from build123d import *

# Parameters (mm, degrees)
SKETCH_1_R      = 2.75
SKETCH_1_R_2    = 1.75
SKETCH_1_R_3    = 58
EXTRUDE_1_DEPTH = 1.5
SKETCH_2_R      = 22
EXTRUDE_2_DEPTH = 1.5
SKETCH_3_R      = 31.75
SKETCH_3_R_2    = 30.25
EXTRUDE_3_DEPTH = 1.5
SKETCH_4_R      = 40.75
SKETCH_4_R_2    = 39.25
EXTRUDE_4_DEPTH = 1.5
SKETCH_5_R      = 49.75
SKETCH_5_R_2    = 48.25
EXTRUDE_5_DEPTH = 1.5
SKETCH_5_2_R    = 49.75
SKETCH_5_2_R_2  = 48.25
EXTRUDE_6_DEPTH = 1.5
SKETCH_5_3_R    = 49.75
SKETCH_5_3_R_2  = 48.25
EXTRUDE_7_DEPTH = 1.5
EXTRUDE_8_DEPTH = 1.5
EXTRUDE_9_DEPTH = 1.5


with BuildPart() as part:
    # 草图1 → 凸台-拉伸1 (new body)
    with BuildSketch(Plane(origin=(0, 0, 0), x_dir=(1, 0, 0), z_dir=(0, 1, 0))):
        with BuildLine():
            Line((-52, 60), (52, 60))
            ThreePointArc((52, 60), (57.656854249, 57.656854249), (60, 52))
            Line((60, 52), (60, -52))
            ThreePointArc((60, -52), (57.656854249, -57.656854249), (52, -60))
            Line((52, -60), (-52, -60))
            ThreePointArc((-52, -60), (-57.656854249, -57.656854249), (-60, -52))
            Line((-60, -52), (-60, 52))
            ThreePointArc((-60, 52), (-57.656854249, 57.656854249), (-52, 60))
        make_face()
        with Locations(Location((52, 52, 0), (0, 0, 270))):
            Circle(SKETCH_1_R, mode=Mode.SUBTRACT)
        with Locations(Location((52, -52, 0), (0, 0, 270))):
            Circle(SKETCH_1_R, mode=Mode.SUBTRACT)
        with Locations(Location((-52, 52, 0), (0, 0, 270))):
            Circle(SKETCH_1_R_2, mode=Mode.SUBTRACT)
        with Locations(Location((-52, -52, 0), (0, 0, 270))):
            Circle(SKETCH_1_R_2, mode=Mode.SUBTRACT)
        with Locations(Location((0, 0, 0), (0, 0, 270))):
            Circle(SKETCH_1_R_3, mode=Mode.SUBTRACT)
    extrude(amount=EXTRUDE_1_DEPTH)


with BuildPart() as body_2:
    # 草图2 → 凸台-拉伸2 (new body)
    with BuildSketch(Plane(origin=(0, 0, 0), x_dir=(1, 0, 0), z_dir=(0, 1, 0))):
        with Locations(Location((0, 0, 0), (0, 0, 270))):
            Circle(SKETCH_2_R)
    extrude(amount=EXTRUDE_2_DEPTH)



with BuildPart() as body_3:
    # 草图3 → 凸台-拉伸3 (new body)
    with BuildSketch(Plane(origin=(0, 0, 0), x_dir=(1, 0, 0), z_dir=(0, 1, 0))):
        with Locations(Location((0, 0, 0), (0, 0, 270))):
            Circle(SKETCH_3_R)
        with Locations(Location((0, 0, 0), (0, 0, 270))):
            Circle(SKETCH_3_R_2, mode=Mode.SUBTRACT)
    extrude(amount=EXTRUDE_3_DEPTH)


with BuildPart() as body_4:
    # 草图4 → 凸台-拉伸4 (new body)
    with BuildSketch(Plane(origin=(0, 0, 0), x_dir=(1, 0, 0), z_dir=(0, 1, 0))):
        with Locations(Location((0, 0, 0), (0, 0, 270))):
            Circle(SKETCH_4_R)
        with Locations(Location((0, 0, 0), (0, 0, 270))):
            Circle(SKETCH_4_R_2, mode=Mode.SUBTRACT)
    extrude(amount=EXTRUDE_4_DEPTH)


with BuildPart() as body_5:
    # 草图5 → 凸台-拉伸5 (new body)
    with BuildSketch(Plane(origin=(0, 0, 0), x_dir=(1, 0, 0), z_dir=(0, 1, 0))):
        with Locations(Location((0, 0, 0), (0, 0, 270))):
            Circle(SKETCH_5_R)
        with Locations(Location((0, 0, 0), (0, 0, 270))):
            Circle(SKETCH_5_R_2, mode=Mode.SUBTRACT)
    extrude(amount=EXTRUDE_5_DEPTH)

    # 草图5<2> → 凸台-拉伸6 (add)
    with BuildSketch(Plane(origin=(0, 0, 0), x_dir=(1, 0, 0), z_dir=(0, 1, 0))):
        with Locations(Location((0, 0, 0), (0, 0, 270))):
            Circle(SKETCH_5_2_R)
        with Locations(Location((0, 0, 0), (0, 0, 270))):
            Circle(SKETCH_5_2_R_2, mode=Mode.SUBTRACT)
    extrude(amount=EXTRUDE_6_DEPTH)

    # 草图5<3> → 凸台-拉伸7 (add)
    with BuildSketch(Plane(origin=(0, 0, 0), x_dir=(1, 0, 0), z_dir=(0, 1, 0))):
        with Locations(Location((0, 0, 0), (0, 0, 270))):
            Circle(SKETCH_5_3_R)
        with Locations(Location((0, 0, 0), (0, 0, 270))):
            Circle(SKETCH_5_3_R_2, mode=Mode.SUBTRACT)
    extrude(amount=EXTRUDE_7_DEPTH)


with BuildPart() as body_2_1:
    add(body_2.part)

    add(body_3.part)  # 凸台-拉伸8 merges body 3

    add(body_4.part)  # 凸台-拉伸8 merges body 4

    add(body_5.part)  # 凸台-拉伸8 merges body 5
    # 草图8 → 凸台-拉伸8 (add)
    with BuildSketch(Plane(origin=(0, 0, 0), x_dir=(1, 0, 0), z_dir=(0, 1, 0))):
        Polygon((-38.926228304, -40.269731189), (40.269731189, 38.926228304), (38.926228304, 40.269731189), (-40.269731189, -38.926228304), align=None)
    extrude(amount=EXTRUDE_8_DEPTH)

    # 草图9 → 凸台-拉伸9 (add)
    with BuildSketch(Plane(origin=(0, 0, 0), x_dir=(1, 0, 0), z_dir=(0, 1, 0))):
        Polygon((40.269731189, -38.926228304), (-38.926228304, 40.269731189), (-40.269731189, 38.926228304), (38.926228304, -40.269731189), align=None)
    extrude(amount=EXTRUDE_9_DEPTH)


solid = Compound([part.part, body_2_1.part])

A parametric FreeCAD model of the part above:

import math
import FreeCAD as App
import Part
import Sketcher
Q = App.Units.Quantity


def add_polygon(sketch, points):
    """Adds a closed chain of lines whose ends are joined by coincident constraints."""
    first, n = sketch.GeometryCount, len(points)
    for a, b in zip(points, points[1:] + points[:1]):
        sketch.addGeometry(Part.LineSegment(App.Vector(*a, 0), App.Vector(*b, 0)), False)
    for i in range(n):
        sketch.addConstraint(Sketcher.Constraint("Coincident", first + i, 2, first + (i + 1) % n, 1))

doc = App.newDocument("Part")
params = doc.addObject("Spreadsheet::Sheet", "Params")
for row, (alias, value) in enumerate([
    ("sketch1_diameter", "116 mm"),
    ("sketch1_radius", "8 mm"),
    ("sketch1_diameter2", "5.5 mm"),
    ("sketch1_diameter3", "3.5 mm"),
    ("sketch1_width", "104 mm"),
    ("pad1_length", "1.5 mm"),
    ("sketch2_diameter", "44 mm"),
    ("pad2_length", "1.5 mm"),
    ("sketch3_diameter", "63.5 mm"),
    ("sketch3_diameter2", "60.5 mm"),
    ("pad3_length", "1.5 mm"),
    ("sketch4_diameter", "81.5 mm"),
    ("sketch4_diameter2", "78.5 mm"),
    ("pad4_length", "1.5 mm"),
    ("sketch5_diameter", "99.5 mm"),
    ("sketch5_diameter2", "96.5 mm"),
    ("pad5_length", "1.5 mm"),
    ("sketch6_diameter", "99.5 mm"),
    ("sketch6_diameter2", "96.5 mm"),
    ("pad6_length", "1.5 mm"),
    ("sketch7_diameter", "99.5 mm"),
    ("sketch7_diameter2", "96.5 mm"),
    ("pad7_length", "1.5 mm"),
    ("sketch8_length", "112 mm"),
    ("sketch8_length2", "1.9 mm"),
    ("pad8_length", "1.5 mm"),
    ("sketch9_length", "112 mm"),
    ("sketch9_length2", "1.9 mm"),
    ("pad9_length", "1.5 mm"),
], start=1):
    params.set(f"A{row}", alias)
    params.set(f"B{row}", "=" + value)
    params.setAlias(f"B{row}", alias)

body = doc.addObject("PartDesign::Body", "Body")

# Sketch on XZ plane
sketch1 = body.newObject("Sketcher::SketchObject", "Sketch")
sketch1.AttachmentSupport = (doc.getObject("XZ_Plane"), [""])
sketch1.MapMode = "FlatFace"
sketch1.addGeometry(Part.LineSegment(App.Vector(52, -60, 0), App.Vector(-52, -60, 0)), False)
sketch1.addGeometry(Part.ArcOfCircle(Part.Circle(App.Vector(-52, -52, 0), App.Vector(0, 0, 1), 8), math.radians(-180), math.radians(-90)), False)
sketch1.addGeometry(Part.LineSegment(App.Vector(-60, -52, 0), App.Vector(-60, 52, 0)), False)
sketch1.addGeometry(Part.ArcOfCircle(Part.Circle(App.Vector(-52, 52, 0), App.Vector(0, 0, 1), 8), math.radians(90), math.radians(180)), False)
sketch1.addGeometry(Part.LineSegment(App.Vector(-52, 60, 0), App.Vector(52, 60, 0)), False)
sketch1.addGeometry(Part.ArcOfCircle(Part.Circle(App.Vector(52, 52, 0), App.Vector(0, 0, 1), 8), math.radians(0), math.radians(90)), False)
sketch1.addGeometry(Part.LineSegment(App.Vector(60, 52, 0), App.Vector(60, -52, 0)), False)
sketch1.addGeometry(Part.ArcOfCircle(Part.Circle(App.Vector(52, -52, 0), App.Vector(0, 0, 1), 8), math.radians(-90), math.radians(0)), False)
sketch1.addGeometry(Part.Circle(App.Vector(52, 52, 0), App.Vector(0, 0, 1), 2.8), False)
sketch1.addGeometry(Part.Circle(App.Vector(-52, 52, 0), App.Vector(0, 0, 1), 1.8), False)
sketch1.addGeometry(Part.Circle(App.Vector(52, -52, 0), App.Vector(0, 0, 1), 2.8), False)
sketch1.addGeometry(Part.Circle(App.Vector(0, 0, 0), App.Vector(0, 0, 1), 58), False)
sketch1.addGeometry(Part.Circle(App.Vector(-52, -52, 0), App.Vector(0, 0, 1), 1.8), False)
sketch1.addConstraint(Sketcher.Constraint("Tangent", 0, 2, 1, 2))
sketch1.addConstraint(Sketcher.Constraint("Tangent", 1, 1, 2, 1))
sketch1.addConstraint(Sketcher.Constraint("Tangent", 2, 2, 3, 2))
sketch1.addConstraint(Sketcher.Constraint("Tangent", 3, 1, 4, 1))
sketch1.addConstraint(Sketcher.Constraint("Tangent", 4, 2, 5, 2))
sketch1.addConstraint(Sketcher.Constraint("Tangent", 5, 1, 6, 1))
sketch1.addConstraint(Sketcher.Constraint("Tangent", 6, 2, 7, 2))
sketch1.addConstraint(Sketcher.Constraint("Tangent", 7, 1, 0, 1))
sketch1.addConstraint(Sketcher.Constraint("Horizontal", 0))
sketch1.addConstraint(Sketcher.Constraint("Vertical", 2))
sketch1.addConstraint(Sketcher.Constraint("Horizontal", 4))
sketch1.addConstraint(Sketcher.Constraint("Vertical", 6))
sketch1.addConstraint(Sketcher.Constraint("Coincident", 11, 3, -1, 1))
sketch1.addConstraint(Sketcher.Constraint("Coincident", 8, 3, 5, 3))
sketch1.addConstraint(Sketcher.Constraint("Coincident", 9, 3, 3, 3))
sketch1.addConstraint(Sketcher.Constraint("Coincident", 10, 3, 7, 3))
sketch1.addConstraint(Sketcher.Constraint("Coincident", 12, 3, 1, 3))
sketch1.addConstraint(Sketcher.Constraint("Equal", 1, 3))
sketch1.addConstraint(Sketcher.Constraint("Equal", 3, 5))
sketch1.addConstraint(Sketcher.Constraint("Equal", 5, 7))
sketch1.addConstraint(Sketcher.Constraint("Equal", 8, 10))
sketch1.addConstraint(Sketcher.Constraint("Equal", 9, 12))
sketch1.addConstraint(Sketcher.Constraint("Symmetric", 1, 3, 5, 3, -1, 1))
sketch1.addConstraint(Sketcher.Constraint("Equal", 4, 2))
sketch1.addConstraint(Sketcher.Constraint("Diameter", 11, 116.0))
sketch1.addConstraint(Sketcher.Constraint("Radius", 1, 8.0))
sketch1.addConstraint(Sketcher.Constraint("Diameter", 8, 5.5))
sketch1.addConstraint(Sketcher.Constraint("Diameter", 9, 3.5))
sketch1.addConstraint(Sketcher.Constraint("DistanceX", 0, 2, 0, 1, 104.0))
sketch1.setExpression("Constraints[24]", "Params.sketch1_diameter")
sketch1.setExpression("Constraints[25]", "Params.sketch1_radius")
sketch1.setExpression("Constraints[26]", "Params.sketch1_diameter2")
sketch1.setExpression("Constraints[27]", "Params.sketch1_diameter3")
sketch1.setExpression("Constraints[28]", "Params.sketch1_width")
pad1 = body.newObject("PartDesign::Pad", "Pad")
pad1.Profile = sketch1
pad1.setExpression("Length", "Params.pad1_length")
pad1.Reversed = True
body2 = doc.addObject("PartDesign::Body", "Body001")

# Sketch on XZ plane
sketch2 = body2.newObject("Sketcher::SketchObject", "Sketch001")
sketch2.AttachmentSupport = (doc.getObject("XZ_Plane001"), [""])
sketch2.MapMode = "FlatFace"
sketch2.addGeometry(Part.Circle(App.Vector(0, 0, 0), App.Vector(0, 0, 1), 22), False)
sketch2.addConstraint(Sketcher.Constraint("Coincident", 0, 3, -1, 1))
sketch2.addConstraint(Sketcher.Constraint("Diameter", 0, 44.0))
sketch2.setExpression("Constraints[1]", "Params.sketch2_diameter")
pad2 = body2.newObject("PartDesign::Pad", "Pad001")
pad2.Profile = sketch2
pad2.setExpression("Length", "Params.pad2_length")
pad2.Reversed = True
body3 = doc.addObject("PartDesign::Body", "Body002")

# Sketch on XZ plane
sketch3 = body3.newObject("Sketcher::SketchObject", "Sketch002")
sketch3.AttachmentSupport = (doc.getObject("XZ_Plane002"), [""])
sketch3.MapMode = "FlatFace"
sketch3.addGeometry(Part.Circle(App.Vector(0, 0, 0), App.Vector(0, 0, 1), 32), False)
sketch3.addGeometry(Part.Circle(App.Vector(0, 0, 0), App.Vector(0, 0, 1), 30), False)
sketch3.addConstraint(Sketcher.Constraint("Coincident", 0, 3, -1, 1))
sketch3.addConstraint(Sketcher.Constraint("Coincident", 1, 3, -1, 1))
sketch3.addConstraint(Sketcher.Constraint("Diameter", 0, 63.5))
sketch3.addConstraint(Sketcher.Constraint("Diameter", 1, 60.5))
sketch3.setExpression("Constraints[2]", "Params.sketch3_diameter")
sketch3.setExpression("Constraints[3]", "Params.sketch3_diameter2")
pad3 = body3.newObject("PartDesign::Pad", "Pad002")
pad3.Profile = sketch3
pad3.setExpression("Length", "Params.pad3_length")
pad3.Reversed = True
body4 = doc.addObject("PartDesign::Body", "Body003")

# Sketch on XZ plane
sketch4 = body4.newObject("Sketcher::SketchObject", "Sketch003")
sketch4.AttachmentSupport = (doc.getObject("XZ_Plane003"), [""])
sketch4.MapMode = "FlatFace"
sketch4.addGeometry(Part.Circle(App.Vector(0, 0, 0), App.Vector(0, 0, 1), 41), False)
sketch4.addGeometry(Part.Circle(App.Vector(0, 0, 0), App.Vector(0, 0, 1), 39), False)
sketch4.addConstraint(Sketcher.Constraint("Coincident", 0, 3, -1, 1))
sketch4.addConstraint(Sketcher.Constraint("Coincident", 1, 3, -1, 1))
sketch4.addConstraint(Sketcher.Constraint("Diameter", 0, 81.5))
sketch4.addConstraint(Sketcher.Constraint("Diameter", 1, 78.5))
sketch4.setExpression("Constraints[2]", "Params.sketch4_diameter")
sketch4.setExpression("Constraints[3]", "Params.sketch4_diameter2")
pad4 = body4.newObject("PartDesign::Pad", "Pad003")
pad4.Profile = sketch4
pad4.setExpression("Length", "Params.pad4_length")
pad4.Reversed = True
body5 = doc.addObject("PartDesign::Body", "Body004")

# Sketch on XZ plane
sketch5 = body5.newObject("Sketcher::SketchObject", "Sketch004")
sketch5.AttachmentSupport = (doc.getObject("XZ_Plane004"), [""])
sketch5.MapMode = "FlatFace"
sketch5.addGeometry(Part.Circle(App.Vector(0, 0, 0), App.Vector(0, 0, 1), 50), False)
sketch5.addGeometry(Part.Circle(App.Vector(0, 0, 0), App.Vector(0, 0, 1), 48), False)
sketch5.addConstraint(Sketcher.Constraint("Coincident", 0, 3, -1, 1))
sketch5.addConstraint(Sketcher.Constraint("Coincident", 1, 3, -1, 1))
sketch5.addConstraint(Sketcher.Constraint("Diameter", 0, 99.5))
sketch5.addConstraint(Sketcher.Constraint("Diameter", 1, 96.5))
sketch5.setExpression("Constraints[2]", "Params.sketch5_diameter")
sketch5.setExpression("Constraints[3]", "Params.sketch5_diameter2")
pad5 = body5.newObject("PartDesign::Pad", "Pad004")
pad5.Profile = sketch5
pad5.setExpression("Length", "Params.pad5_length")
pad5.Reversed = True

# Sketch on XZ plane
sketch6 = body5.newObject("Sketcher::SketchObject", "Sketch005")
sketch6.AttachmentSupport = (doc.getObject("XZ_Plane004"), [""])
sketch6.MapMode = "FlatFace"
sketch6.addGeometry(Part.Circle(App.Vector(0, 0, 0), App.Vector(0, 0, 1), 50), False)
sketch6.addGeometry(Part.Circle(App.Vector(0, 0, 0), App.Vector(0, 0, 1), 48), False)
sketch6.addConstraint(Sketcher.Constraint("Coincident", 0, 3, -1, 1))
sketch6.addConstraint(Sketcher.Constraint("Coincident", 1, 3, -1, 1))
sketch6.addConstraint(Sketcher.Constraint("Diameter", 0, 99.5))
sketch6.addConstraint(Sketcher.Constraint("Diameter", 1, 96.5))
sketch6.setExpression("Constraints[2]", "Params.sketch6_diameter")
sketch6.setExpression("Constraints[3]", "Params.sketch6_diameter2")
pad6 = body5.newObject("PartDesign::Pad", "Pad005")
pad6.Profile = sketch6
pad6.setExpression("Length", "Params.pad6_length")
pad6.Reversed = True

# Sketch on XZ plane
sketch7 = body5.newObject("Sketcher::SketchObject", "Sketch006")
sketch7.AttachmentSupport = (doc.getObject("XZ_Plane004"), [""])
sketch7.MapMode = "FlatFace"
sketch7.addGeometry(Part.Circle(App.Vector(0, 0, 0), App.Vector(0, 0, 1), 50), False)
sketch7.addGeometry(Part.Circle(App.Vector(0, 0, 0), App.Vector(0, 0, 1), 48), False)
sketch7.addConstraint(Sketcher.Constraint("Coincident", 0, 3, -1, 1))
sketch7.addConstraint(Sketcher.Constraint("Coincident", 1, 3, -1, 1))
sketch7.addConstraint(Sketcher.Constraint("Diameter", 0, 99.5))
sketch7.addConstraint(Sketcher.Constraint("Diameter", 1, 96.5))
sketch7.setExpression("Constraints[2]", "Params.sketch7_diameter")
sketch7.setExpression("Constraints[3]", "Params.sketch7_diameter2")
pad7 = body5.newObject("PartDesign::Pad", "Pad006")
pad7.Profile = sketch7
pad7.setExpression("Length", "Params.pad7_length")
pad7.Reversed = True
body2.AllowCompound = True
doc.recompute()

boolean = body2.newObject("PartDesign::Boolean", "Boolean")
boolean.Type = "Fuse"
boolean.addObjects([body3])
doc.recompute()

boolean2 = body2.newObject("PartDesign::Boolean", "Boolean001")
boolean2.Type = "Fuse"
boolean2.addObjects([body4])
doc.recompute()

boolean3 = body2.newObject("PartDesign::Boolean", "Boolean002")
boolean3.Type = "Fuse"
boolean3.addObjects([body5])

# Sketch on XZ plane
sketch8 = body2.newObject("Sketcher::SketchObject", "Sketch007")
sketch8.AttachmentSupport = (doc.getObject("XZ_Plane001"), [""])
sketch8.MapMode = "FlatFace"
add_polygon(sketch8, [(-38.9, 40.3), (40.3, -38.9), (38.9, -40.3), (-40.3, 38.9)])  # lines 0-3
sketch8.addConstraint(Sketcher.Constraint("Symmetric", 0, 2, 2, 2, -1, 1))
sketch8.addConstraint(Sketcher.Constraint("Symmetric", 1, 2, 3, 2, -1, 1))
sketch8.addConstraint(Sketcher.Constraint("Perpendicular", 0, 1))
sketch8.addConstraint(Sketcher.Constraint("Angle", 0, Q("-45 deg")))
sketch8.addConstraint(Sketcher.Constraint("Distance", 0, 112.0))
sketch8.addConstraint(Sketcher.Constraint("Distance", 1, 1.9))
sketch8.setExpression("Constraints[8]", "Params.sketch8_length")
sketch8.setExpression("Constraints[9]", "Params.sketch8_length2")
pad8 = body2.newObject("PartDesign::Pad", "Pad007")
pad8.Profile = sketch8
pad8.setExpression("Length", "Params.pad8_length")
pad8.Reversed = True

# Sketch on XZ plane
sketch9 = body2.newObject("Sketcher::SketchObject", "Sketch008")
sketch9.AttachmentSupport = (doc.getObject("XZ_Plane001"), [""])
sketch9.MapMode = "FlatFace"
add_polygon(sketch9, [(40.3, 38.9), (-38.9, -40.3), (-40.3, -38.9), (38.9, 40.3)])  # lines 0-3
sketch9.addConstraint(Sketcher.Constraint("Symmetric", 0, 2, 2, 2, -1, 1))
sketch9.addConstraint(Sketcher.Constraint("Symmetric", 1, 2, 3, 2, -1, 1))
sketch9.addConstraint(Sketcher.Constraint("Perpendicular", 0, 1))
sketch9.addConstraint(Sketcher.Constraint("Angle", 0, Q("-135 deg")))
sketch9.addConstraint(Sketcher.Constraint("Distance", 0, 112.0))
sketch9.addConstraint(Sketcher.Constraint("Distance", 1, 1.9))
sketch9.setExpression("Constraints[8]", "Params.sketch9_length")
sketch9.setExpression("Constraints[9]", "Params.sketch9_length2")
pad9 = body2.newObject("PartDesign::Pad", "Pad008")
pad9.Profile = sketch9
pad9.setExpression("Length", "Params.pad9_length")
pad9.Reversed = True

doc.recompute()
